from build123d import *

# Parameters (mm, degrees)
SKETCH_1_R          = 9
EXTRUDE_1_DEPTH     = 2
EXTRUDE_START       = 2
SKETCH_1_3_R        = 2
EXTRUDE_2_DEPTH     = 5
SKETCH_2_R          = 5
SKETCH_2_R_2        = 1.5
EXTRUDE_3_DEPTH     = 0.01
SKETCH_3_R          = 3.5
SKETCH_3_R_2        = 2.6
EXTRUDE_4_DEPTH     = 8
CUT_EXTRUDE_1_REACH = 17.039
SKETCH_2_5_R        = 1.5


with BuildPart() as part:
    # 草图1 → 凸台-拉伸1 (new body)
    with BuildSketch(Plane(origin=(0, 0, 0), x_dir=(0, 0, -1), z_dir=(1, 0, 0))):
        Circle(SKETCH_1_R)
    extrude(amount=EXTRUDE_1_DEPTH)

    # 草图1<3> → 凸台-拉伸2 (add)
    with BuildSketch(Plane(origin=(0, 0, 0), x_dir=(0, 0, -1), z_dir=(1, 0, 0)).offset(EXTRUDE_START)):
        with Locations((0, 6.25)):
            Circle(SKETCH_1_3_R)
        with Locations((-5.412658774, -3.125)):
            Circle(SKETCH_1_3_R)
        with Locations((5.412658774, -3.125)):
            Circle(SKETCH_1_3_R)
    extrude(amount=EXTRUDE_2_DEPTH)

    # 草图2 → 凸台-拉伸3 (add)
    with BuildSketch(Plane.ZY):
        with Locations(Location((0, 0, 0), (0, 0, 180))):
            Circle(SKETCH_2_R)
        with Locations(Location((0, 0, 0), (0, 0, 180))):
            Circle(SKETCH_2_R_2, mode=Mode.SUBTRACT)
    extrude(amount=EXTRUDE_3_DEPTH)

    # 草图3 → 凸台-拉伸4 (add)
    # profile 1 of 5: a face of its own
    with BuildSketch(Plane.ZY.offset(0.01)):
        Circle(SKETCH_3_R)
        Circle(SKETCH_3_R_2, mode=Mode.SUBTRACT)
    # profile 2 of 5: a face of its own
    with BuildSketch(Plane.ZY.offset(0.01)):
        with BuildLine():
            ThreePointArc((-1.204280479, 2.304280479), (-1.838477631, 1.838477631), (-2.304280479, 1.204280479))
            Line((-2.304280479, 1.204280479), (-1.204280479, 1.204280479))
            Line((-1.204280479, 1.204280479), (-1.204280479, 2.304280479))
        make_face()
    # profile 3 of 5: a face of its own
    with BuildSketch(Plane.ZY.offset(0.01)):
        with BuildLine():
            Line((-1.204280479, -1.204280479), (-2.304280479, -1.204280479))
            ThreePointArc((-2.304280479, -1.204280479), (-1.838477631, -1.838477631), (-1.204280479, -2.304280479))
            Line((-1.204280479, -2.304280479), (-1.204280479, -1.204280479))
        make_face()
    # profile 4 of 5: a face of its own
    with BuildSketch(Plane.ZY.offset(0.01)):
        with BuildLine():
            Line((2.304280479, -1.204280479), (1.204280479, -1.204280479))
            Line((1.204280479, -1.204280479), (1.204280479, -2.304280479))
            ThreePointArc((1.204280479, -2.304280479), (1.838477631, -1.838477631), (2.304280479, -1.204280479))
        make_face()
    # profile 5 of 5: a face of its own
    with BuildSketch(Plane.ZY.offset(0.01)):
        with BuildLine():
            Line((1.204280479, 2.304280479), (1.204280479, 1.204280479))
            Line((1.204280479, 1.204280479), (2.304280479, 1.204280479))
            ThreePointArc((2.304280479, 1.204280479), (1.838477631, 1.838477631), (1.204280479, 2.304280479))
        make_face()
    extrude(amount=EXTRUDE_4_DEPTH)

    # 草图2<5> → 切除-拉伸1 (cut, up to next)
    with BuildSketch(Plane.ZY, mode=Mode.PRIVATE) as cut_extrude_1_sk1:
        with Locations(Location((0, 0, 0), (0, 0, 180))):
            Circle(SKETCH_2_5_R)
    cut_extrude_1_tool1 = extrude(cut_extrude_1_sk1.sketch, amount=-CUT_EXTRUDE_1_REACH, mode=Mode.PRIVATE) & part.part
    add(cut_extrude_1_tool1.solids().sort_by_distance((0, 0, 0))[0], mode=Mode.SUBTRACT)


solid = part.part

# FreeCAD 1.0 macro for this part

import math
import FreeCAD as App
import Part
import Sketcher

doc = App.newDocument("Part")
body = doc.addObject("PartDesign::Body", "Body")

sketch1 = doc.addObject("Sketcher::SketchObject", "Sketch")
body.addObject(sketch1)
sketch1.AttachmentSupport = (doc.YZ_Plane, [""])
sketch1.MapMode = "FlatFace"
sketch1.addGeometry(Part.Circle(App.Vector(0, 0, 0), App.Vector(0, 0, 1), 9), False)
sketch1.addConstraint([
    Sketcher.Constraint("Coincident", 0, 3, -1, 1),
    Sketcher.Constraint("Diameter", 0, 18.0),
])
pad1 = doc.addObject("PartDesign::Pad", "Pad")
body.addObject(pad1)
pad1.Profile = sketch1
pad1.Length = 2

sketch2 = doc.addObject("Sketcher::SketchObject", "Sketch001")
body.addObject(sketch2)
sketch2.AttachmentSupport = (doc.YZ_Plane, [""])
sketch2.MapMode = "FlatFace"
sketch2.AttachmentOffset = App.Placement(App.Vector(0, 0, 2), App.Rotation())
sketch2.addGeometry([
    Part.Circle(App.Vector(6.2, 0, 0), App.Vector(0, 0, 1), 2),
    Part.Circle(App.Vector(-3.1, 5.4, 0), App.Vector(0, 0, 1), 2),
    Part.Circle(App.Vector(-3.1, -5.4, 0), App.Vector(0, 0, 1), 2),
], False)
sketch2.addConstraint([
    Sketcher.Constraint("Equal", 0, 1),
    Sketcher.Constraint("Equal", 1, 2),
    Sketcher.Constraint("Symmetric", 1, 3, 2, 3, -1),
    Sketcher.Constraint("PointOnObject", 0, 3, -1),
    Sketcher.Constraint("Diameter", 0, 4.0),
    Sketcher.Constraint("DistanceX", -1, 1, 0, 3, 6.25),
    Sketcher.Constraint("DistanceX", 1, 3, -1, 1, 3.125),
    Sketcher.Constraint("DistanceY", -1, 1, 1, 3, 5.412659),
])
pad2 = doc.addObject("PartDesign::Pad", "Pad001")
body.addObject(pad2)
pad2.Profile = sketch2
pad2.Length = 5

sketch3 = doc.addObject("Sketcher::SketchObject", "Sketch002")
body.addObject(sketch3)
sketch3.AttachmentSupport = (doc.YZ_Plane, [""])
sketch3.MapMode = "FlatFace"
sketch3.addGeometry([
    Part.Circle(App.Vector(0, 0, 0), App.Vector(0, 0, 1), 5),
    Part.Circle(App.Vector(0, 0, 0), App.Vector(0, 0, 1), 1.5),
], False)
sketch3.addConstraint([
    Sketcher.Constraint("Coincident", 0, 3, -1, 1),
    Sketcher.Constraint("Coincident", 1, 3, -1, 1),
    Sketcher.Constraint("Diameter", 0, 10.0),
    Sketcher.Constraint("Diameter", 1, 3.0),
])
pad3 = doc.addObject("PartDesign::Pad", "Pad002")
body.addObject(pad3)
pad3.Profile = sketch3
pad3.Length = 0.01
pad3.Reversed = True

sketch4 = doc.addObject("Sketcher::SketchObject", "Sketch003")
body.addObject(sketch4)
sketch4.AttachmentSupport = (doc.YZ_Plane, [""])
sketch4.MapMode = "FlatFace"
sketch4.AttachmentOffset = App.Placement(App.Vector(0, 0, -0.01), App.Rotation())
sketch4.addGeometry([
    Part.Circle(App.Vector(0, 0, 0), App.Vector(0, 0, 1), 3.5),
    Part.ArcOfCircle(Part.Circle(App.Vector(0, 0, 0), App.Vector(0, 0, 1), 2.6), math.radians(62), math.radians(118)),
    Part.LineSegment(App.Vector(-1.2, 2.3, 0), App.Vector(-1.2, 1.2, 0)),
    Part.LineSegment(App.Vector(-1.2, 1.2, 0), App.Vector(-2.3, 1.2, 0)),
    Part.ArcOfCircle(Part.Circle(App.Vector(0, 0, 0), App.Vector(0, 0, 1), 2.6), math.radians(152), math.radians(208)),
    Part.LineSegment(App.Vector(-2.3, -1.2, 0), App.Vector(-1.2, -1.2, 0)),
    Part.LineSegment(App.Vector(-1.2, -1.2, 0), App.Vector(-1.2, -2.3, 0)),
    Part.ArcOfCircle(Part.Circle(App.Vector(0, 0, 0), App.Vector(0, 0, 1), 2.6), math.radians(-118), math.radians(-62)),
    Part.LineSegment(App.Vector(1.2, -2.3, 0), App.Vector(1.2, -1.2, 0)),
    Part.LineSegment(App.Vector(1.2, -1.2, 0), App.Vector(2.3, -1.2, 0)),
    Part.ArcOfCircle(Part.Circle(App.Vector(0, 0, 0), App.Vector(0, 0, 1), 2.6), math.radians(-28), math.radians(28)),
    Part.LineSegment(App.Vector(2.3, 1.2, 0), App.Vector(1.2, 1.2, 0)),
    Part.LineSegment(App.Vector(1.2, 1.2, 0), App.Vector(1.2, 2.3, 0)),
], False)
sketch4.addConstraint([
    Sketcher.Constraint("Coincident", 1, 2, 2, 1),
    Sketcher.Constraint("Coincident", 2, 2, 3, 1),
    Sketcher.Constraint("Coincident", 3, 2, 4, 1),
    Sketcher.Constraint("Coincident", 4, 2, 5, 1),
    Sketcher.Constraint("Coincident", 5, 2, 6, 1),
    Sketcher.Constraint("Coincident", 6, 2, 7, 1),
    Sketcher.Constraint("Coincident", 7, 2, 8, 1),
    Sketcher.Constraint("Coincident", 8, 2, 9, 1),
    Sketcher.Constraint("Coincident", 9, 2, 10, 1),
    Sketcher.Constraint("Coincident", 10, 2, 11, 1),
    Sketcher.Constraint("Coincident", 11, 2, 12, 1),
    Sketcher.Constraint("Coincident", 12, 2, 1, 1),
    Sketcher.Constraint("Vertical", 2),
    Sketcher.Constraint("Horizontal", 3),
    Sketcher.Constraint("Horizontal", 5),
    Sketcher.Constraint("Vertical", 6),
    Sketcher.Constraint("Vertical", 8),
    Sketcher.Constraint("Horizontal", 9),
    Sketcher.Constraint("Horizontal", 11),
    Sketcher.Constraint("Vertical", 12),
    Sketcher.Constraint("Coincident", 0, 3, -1, 1),
    Sketcher.Constraint("Coincident", 1, 3, -1, 1),
    Sketcher.Constraint("Coincident", 4, 3, -1, 1),
    Sketcher.Constraint("Coincident", 7, 3, -1, 1),
    Sketcher.Constraint("Coincident", 10, 3, -1, 1),
    Sketcher.Constraint("Equal", 1, 4),
    Sketcher.Constraint("Equal", 4, 7),
    Sketcher.Constraint("Equal", 7, 10),
    Sketcher.Constraint("Symmetric", 2, 2, 8, 2, -1, 1),
    Sketcher.Constraint("Symmetric", 5, 2, 11, 2, -1, 1),
    Sketcher.Constraint("Symmetric", 5, 2, 8, 2, -2),
    Sketcher.Constraint("Equal", 11, 2),
    Sketcher.Constraint("Diameter", 0, 7.0),
    Sketcher.Constraint("Radius", 1, 2.6),
    Sketcher.Constraint("DistanceX", 3, 2, 3, 1, 1.1),
])
pad4 = doc.addObject("PartDesign::Pad", "Pad003")
body.addObject(pad4)
pad4.Profile = sketch4
pad4.Length = 8
pad4.Reversed = True

sketch5 = doc.addObject("Sketcher::SketchObject", "Sketch004")
body.addObject(sketch5)
sketch5.AttachmentSupport = (doc.YZ_Plane, [""])
sketch5.MapMode = "FlatFace"
sketch5.addGeometry(Part.Circle(App.Vector(0, 0, 0), App.Vector(0, 0, 1), 1.5), False)
sketch5.addConstraint([
    Sketcher.Constraint("Coincident", 0, 3, -1, 1),
    Sketcher.Constraint("Diameter", 0, 3.0),
])
pocket1 = doc.addObject("PartDesign::Pocket", "Pocket")
body.addObject(pocket1)
pocket1.Profile = sketch5
pocket1.Type = "UpToFirst"
pocket1.Reversed = True

doc.recompute()
